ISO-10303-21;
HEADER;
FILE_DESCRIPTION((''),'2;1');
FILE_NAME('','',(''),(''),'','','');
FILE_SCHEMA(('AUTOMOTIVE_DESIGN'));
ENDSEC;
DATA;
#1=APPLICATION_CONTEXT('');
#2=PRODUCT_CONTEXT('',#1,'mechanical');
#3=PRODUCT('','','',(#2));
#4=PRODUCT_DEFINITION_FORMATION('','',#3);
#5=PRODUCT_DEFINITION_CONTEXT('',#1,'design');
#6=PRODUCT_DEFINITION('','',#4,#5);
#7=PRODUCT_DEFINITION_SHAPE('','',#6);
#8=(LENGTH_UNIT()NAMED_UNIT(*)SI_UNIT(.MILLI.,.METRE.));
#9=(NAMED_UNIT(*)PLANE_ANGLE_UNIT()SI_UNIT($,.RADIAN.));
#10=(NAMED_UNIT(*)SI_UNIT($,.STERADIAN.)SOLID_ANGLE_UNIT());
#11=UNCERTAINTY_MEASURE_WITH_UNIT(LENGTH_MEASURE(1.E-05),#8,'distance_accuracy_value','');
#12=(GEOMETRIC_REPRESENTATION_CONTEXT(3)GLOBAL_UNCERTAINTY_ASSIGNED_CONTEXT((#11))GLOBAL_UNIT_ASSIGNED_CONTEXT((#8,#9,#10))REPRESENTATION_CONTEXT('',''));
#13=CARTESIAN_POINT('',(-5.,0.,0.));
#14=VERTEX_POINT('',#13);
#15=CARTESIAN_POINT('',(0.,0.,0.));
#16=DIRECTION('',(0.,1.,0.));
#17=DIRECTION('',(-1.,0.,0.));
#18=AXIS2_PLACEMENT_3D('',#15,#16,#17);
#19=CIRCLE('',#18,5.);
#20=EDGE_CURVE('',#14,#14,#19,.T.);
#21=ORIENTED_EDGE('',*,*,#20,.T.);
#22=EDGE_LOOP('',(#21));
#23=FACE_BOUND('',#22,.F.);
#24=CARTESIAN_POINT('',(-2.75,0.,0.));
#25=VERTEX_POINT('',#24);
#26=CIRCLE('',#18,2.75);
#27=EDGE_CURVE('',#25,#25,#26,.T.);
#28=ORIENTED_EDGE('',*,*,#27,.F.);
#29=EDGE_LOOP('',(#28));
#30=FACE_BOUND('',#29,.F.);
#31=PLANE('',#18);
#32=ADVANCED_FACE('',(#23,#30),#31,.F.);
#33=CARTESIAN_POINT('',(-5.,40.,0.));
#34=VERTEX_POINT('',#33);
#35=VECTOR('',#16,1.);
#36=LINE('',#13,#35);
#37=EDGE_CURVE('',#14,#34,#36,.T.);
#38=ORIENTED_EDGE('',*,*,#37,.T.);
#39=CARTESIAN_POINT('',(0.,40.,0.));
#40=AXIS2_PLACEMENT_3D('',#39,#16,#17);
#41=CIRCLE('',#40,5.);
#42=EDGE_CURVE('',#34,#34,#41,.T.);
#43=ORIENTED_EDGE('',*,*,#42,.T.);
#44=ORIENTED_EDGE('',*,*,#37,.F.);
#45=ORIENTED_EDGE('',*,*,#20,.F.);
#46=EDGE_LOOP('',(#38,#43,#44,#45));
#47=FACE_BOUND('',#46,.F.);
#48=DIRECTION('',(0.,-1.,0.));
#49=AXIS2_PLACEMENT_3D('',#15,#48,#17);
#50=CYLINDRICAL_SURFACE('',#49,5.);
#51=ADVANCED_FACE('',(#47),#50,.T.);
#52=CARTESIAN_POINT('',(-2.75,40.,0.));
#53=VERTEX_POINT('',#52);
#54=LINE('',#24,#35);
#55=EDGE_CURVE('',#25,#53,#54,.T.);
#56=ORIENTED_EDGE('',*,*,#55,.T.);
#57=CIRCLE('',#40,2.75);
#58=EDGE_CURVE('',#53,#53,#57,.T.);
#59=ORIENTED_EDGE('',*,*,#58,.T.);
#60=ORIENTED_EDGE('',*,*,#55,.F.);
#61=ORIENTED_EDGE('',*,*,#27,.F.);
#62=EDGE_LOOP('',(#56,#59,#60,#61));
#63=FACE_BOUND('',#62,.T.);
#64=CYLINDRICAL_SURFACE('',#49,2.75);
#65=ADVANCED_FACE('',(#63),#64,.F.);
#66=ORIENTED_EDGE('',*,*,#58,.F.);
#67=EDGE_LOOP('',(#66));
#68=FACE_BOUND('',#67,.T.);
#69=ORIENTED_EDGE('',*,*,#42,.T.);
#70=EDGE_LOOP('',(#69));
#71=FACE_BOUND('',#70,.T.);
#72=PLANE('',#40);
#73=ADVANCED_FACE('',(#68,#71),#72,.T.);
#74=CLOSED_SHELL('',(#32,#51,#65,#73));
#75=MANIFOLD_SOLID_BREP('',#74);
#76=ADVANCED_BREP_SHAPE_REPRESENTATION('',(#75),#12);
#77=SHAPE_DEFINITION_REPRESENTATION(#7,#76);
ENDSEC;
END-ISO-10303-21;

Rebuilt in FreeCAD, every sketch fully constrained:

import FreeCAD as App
import Part
import Sketcher
Q = App.Units.Quantity

doc = App.newDocument("Part")
body = doc.addObject("PartDesign::Body", "Body")

sketch1 = body.newObject("Sketcher::SketchObject", "Sketch")
sketch1.AttachmentSupport = (doc.getObject("XZ_Plane"), [""])
sketch1.MapMode = "FlatFace"
sketch1.addGeometry([
    Part.Circle(App.Vector(0, 0, 0), App.Vector(0, 0, 1), 5),
    Part.Circle(App.Vector(0, 0, 0), App.Vector(0, 0, 1), 2.8),
], False)
sketch1.addConstraint([
    Sketcher.Constraint("Coincident", 0, 3, -1, 1),
    Sketcher.Constraint("Coincident", 1, 3, -1, 1),
    Sketcher.Constraint("Diameter", 0, Q("10 mm")),
    Sketcher.Constraint("Diameter", 1, Q("5.5 mm")),
])
pad1 = body.newObject("PartDesign::Pad", "Pad")
pad1.Profile = sketch1
pad1.Length = 40
pad1.Reversed = True

doc.recompute()
